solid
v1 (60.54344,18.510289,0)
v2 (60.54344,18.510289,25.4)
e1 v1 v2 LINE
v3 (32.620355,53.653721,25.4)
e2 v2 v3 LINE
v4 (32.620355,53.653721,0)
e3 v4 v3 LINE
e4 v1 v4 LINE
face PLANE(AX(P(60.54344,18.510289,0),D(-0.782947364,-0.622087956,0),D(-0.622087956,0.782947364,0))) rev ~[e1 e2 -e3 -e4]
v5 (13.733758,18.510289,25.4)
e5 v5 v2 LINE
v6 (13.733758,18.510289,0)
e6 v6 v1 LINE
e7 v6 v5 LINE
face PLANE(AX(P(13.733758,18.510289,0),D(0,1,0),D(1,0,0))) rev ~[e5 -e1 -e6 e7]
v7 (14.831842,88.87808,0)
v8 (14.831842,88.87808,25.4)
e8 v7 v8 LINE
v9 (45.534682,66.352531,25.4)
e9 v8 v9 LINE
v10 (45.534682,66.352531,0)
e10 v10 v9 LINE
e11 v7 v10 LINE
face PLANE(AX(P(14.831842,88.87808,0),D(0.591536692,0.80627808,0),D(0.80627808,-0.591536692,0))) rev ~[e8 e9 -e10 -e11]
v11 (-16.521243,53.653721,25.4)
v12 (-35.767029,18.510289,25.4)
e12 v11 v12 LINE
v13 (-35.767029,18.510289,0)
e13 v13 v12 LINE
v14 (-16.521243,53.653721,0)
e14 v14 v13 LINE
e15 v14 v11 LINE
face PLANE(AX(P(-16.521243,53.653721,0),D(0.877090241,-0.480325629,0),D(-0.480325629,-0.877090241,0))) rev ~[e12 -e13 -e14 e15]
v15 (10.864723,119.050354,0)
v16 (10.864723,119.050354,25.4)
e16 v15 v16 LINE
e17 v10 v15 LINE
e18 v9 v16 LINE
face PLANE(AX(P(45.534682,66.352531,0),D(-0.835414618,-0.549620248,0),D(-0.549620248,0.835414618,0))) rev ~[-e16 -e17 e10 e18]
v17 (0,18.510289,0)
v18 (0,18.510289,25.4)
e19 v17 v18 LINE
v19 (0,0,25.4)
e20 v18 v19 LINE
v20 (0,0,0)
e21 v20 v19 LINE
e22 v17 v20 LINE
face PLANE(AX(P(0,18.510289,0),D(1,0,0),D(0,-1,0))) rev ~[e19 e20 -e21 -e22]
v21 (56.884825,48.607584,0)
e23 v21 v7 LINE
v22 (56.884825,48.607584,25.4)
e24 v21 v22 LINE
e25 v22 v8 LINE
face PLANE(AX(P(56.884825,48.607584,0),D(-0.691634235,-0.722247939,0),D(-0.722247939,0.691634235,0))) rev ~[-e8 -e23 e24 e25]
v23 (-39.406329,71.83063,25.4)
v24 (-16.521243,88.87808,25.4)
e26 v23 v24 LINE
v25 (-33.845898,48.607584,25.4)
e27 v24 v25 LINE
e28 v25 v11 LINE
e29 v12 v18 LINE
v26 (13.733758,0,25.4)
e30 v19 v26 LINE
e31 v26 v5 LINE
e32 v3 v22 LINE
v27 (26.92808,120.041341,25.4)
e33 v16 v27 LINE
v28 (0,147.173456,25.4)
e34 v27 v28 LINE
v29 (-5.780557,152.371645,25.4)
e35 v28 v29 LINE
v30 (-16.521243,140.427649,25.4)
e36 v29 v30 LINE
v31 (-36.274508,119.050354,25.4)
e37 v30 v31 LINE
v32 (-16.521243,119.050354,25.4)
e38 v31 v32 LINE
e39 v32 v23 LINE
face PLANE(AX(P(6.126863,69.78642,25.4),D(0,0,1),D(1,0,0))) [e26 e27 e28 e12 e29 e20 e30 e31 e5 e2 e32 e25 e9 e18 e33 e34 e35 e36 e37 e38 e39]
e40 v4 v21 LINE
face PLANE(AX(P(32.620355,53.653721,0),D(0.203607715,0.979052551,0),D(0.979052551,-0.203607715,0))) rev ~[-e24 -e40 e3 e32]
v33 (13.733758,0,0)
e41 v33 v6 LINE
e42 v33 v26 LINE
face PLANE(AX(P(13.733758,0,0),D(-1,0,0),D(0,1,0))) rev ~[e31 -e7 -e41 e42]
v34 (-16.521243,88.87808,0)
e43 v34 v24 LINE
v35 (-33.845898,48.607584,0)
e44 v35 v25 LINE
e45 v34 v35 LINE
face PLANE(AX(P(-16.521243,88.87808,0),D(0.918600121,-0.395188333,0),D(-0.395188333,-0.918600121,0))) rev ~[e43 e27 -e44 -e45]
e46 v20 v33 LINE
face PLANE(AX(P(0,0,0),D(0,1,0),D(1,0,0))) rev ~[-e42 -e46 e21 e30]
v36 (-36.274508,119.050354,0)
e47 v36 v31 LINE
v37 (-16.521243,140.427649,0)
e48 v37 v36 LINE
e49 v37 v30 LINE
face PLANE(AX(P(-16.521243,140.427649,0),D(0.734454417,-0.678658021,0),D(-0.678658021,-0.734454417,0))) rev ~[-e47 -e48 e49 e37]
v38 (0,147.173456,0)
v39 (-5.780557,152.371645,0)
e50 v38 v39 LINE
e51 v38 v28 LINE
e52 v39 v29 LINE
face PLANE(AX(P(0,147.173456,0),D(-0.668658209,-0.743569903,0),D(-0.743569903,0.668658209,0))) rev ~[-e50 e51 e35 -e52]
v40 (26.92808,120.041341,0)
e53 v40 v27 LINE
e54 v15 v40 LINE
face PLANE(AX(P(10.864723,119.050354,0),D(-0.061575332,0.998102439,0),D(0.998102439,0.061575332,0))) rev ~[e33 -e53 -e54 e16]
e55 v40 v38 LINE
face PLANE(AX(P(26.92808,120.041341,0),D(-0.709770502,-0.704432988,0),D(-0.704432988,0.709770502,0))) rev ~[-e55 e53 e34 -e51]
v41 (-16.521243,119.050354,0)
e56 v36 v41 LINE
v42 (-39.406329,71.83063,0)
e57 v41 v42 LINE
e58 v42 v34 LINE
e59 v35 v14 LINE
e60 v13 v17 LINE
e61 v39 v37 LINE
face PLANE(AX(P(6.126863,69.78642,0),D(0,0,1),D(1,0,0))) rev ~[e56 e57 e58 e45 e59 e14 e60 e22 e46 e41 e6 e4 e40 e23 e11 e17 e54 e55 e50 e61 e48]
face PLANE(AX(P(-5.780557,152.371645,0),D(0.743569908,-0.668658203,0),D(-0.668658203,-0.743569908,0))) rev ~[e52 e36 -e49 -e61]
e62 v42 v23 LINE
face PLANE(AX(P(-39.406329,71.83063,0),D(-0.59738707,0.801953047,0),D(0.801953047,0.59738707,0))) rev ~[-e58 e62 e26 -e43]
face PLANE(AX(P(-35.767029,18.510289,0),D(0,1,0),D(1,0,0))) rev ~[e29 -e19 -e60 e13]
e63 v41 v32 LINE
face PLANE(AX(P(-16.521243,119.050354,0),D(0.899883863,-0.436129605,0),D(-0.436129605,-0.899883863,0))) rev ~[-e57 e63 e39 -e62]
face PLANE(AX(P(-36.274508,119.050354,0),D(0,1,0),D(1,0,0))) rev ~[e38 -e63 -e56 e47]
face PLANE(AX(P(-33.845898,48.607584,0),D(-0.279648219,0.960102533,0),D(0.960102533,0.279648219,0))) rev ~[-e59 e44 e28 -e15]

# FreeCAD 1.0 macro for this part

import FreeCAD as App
import Part
import Sketcher
Q = App.Units.Quantity

doc = App.newDocument("Part")
body = doc.addObject("PartDesign::Body", "Body")

# Sketch on XY plane
sketch1 = body.newObject("Sketcher::SketchObject", "Sketch")
sketch1.AttachmentSupport = (doc.getObject("XY_Plane"), [""])
sketch1.MapMode = "FlatFace"
sketch1.addGeometry([
    Part.LineSegment(App.Vector(0, 19, 0), App.Vector(0, 0, 0)),  # 0
    Part.LineSegment(App.Vector(0, 0, 0), App.Vector(14, 0, 0)),  # 1
    Part.LineSegment(App.Vector(14, 0, 0), App.Vector(14, 19, 0)),  # 2
    Part.LineSegment(App.Vector(14, 19, 0), App.Vector(61, 19, 0)),  # 3
    Part.LineSegment(App.Vector(61, 19, 0), App.Vector(33, 54, 0)),  # 4
    Part.LineSegment(App.Vector(33, 54, 0), App.Vector(57, 49, 0)),  # 5
    Part.LineSegment(App.Vector(57, 49, 0), App.Vector(15, 89, 0)),  # 6
    Part.LineSegment(App.Vector(15, 89, 0), App.Vector(46, 66, 0)),  # 7
    Part.LineSegment(App.Vector(46, 66, 0), App.Vector(11, 119, 0)),  # 8
    Part.LineSegment(App.Vector(11, 119, 0), App.Vector(27, 120, 0)),  # 9
    Part.LineSegment(App.Vector(27, 120, 0), App.Vector(0, 147, 0)),  # 10
    Part.LineSegment(App.Vector(0, 147, 0), App.Vector(-6, 152, 0)),  # 11
    Part.LineSegment(App.Vector(-6, 152, 0), App.Vector(-17, 140, 0)),  # 12
    Part.LineSegment(App.Vector(-17, 140, 0), App.Vector(-36, 119, 0)),  # 13
    Part.LineSegment(App.Vector(-36, 119, 0), App.Vector(-17, 119, 0)),  # 14
    Part.LineSegment(App.Vector(-17, 119, 0), App.Vector(-39, 72, 0)),  # 15
    Part.LineSegment(App.Vector(-39, 72, 0), App.Vector(-17, 89, 0)),  # 16
    Part.LineSegment(App.Vector(-17, 89, 0), App.Vector(-34, 49, 0)),  # 17
    Part.LineSegment(App.Vector(-34, 49, 0), App.Vector(-17, 54, 0)),  # 18
    Part.LineSegment(App.Vector(-17, 54, 0), App.Vector(-36, 19, 0)),  # 19
    Part.LineSegment(App.Vector(-36, 19, 0), App.Vector(0, 19, 0)),  # 20
], False)
sketch1.addConstraint([
    Sketcher.Constraint("Coincident", 0, 2, 1, 1),
    Sketcher.Constraint("Coincident", 1, 2, 2, 1),
    Sketcher.Constraint("Coincident", 2, 2, 3, 1),
    Sketcher.Constraint("Coincident", 3, 2, 4, 1),
    Sketcher.Constraint("Coincident", 4, 2, 5, 1),
    Sketcher.Constraint("Coincident", 5, 2, 6, 1),
    Sketcher.Constraint("Coincident", 6, 2, 7, 1),
    Sketcher.Constraint("Coincident", 7, 2, 8, 1),
    Sketcher.Constraint("Coincident", 8, 2, 9, 1),
    Sketcher.Constraint("Coincident", 9, 2, 10, 1),
    Sketcher.Constraint("Coincident", 10, 2, 11, 1),
    Sketcher.Constraint("Coincident", 11, 2, 12, 1),
    Sketcher.Constraint("Coincident", 12, 2, 13, 1),
    Sketcher.Constraint("Coincident", 13, 2, 14, 1),
    Sketcher.Constraint("Coincident", 14, 2, 15, 1),
    Sketcher.Constraint("Coincident", 15, 2, 16, 1),
    Sketcher.Constraint("Coincident", 16, 2, 17, 1),
    Sketcher.Constraint("Coincident", 17, 2, 18, 1),
    Sketcher.Constraint("Coincident", 18, 2, 19, 1),
    Sketcher.Constraint("Coincident", 19, 2, 20, 1),
    Sketcher.Constraint("Coincident", 20, 2, 0, 1),
    Sketcher.Constraint("Vertical", 0),
    Sketcher.Constraint("Horizontal", 1),
    Sketcher.Constraint("Vertical", 2),
    Sketcher.Constraint("Horizontal", 3),
    Sketcher.Constraint("Horizontal", 14),
    Sketcher.Constraint("Horizontal", 20),
    Sketcher.Constraint("Coincident", 0, 2, -1, 1),
    Sketcher.Constraint("PointOnObject", 10, 2, -2),
    Sketcher.Constraint("Perpendicular", 11, 12),
    Sketcher.Constraint("Horizontal", 8, 2, 13, 2),
    Sketcher.Constraint("Horizontal", 6, 2, 16, 2),
    Sketcher.Constraint("Horizontal", 5, 2, 17, 2),
    Sketcher.Constraint("Horizontal", 4, 2, 18, 2),
    Sketcher.Constraint("Horizontal", 3, 2, 19, 2),
    Sketcher.Constraint("Vertical", 12, 2, 14, 2),
    Sketcher.Constraint("Vertical", 14, 2, 16, 2),
    Sketcher.Constraint("Vertical", 16, 2, 18, 2),
    Sketcher.Constraint("DistanceX", -1, 1, 3, 2, Q("2.3836 in")),
    Sketcher.Constraint("DistanceY", 6, 2, 9, 2, Q("1.2269 in")),
    Sketcher.Constraint("DistanceX", 15, 2, 13, 2, Q("0.1233 in")),
    Sketcher.Constraint("DistanceX", 3, 1, 3, 2, 46.809682),
    Sketcher.Constraint("DistanceX", 20, 1, 20, 2, 35.767029),
    Sketcher.Constraint("DistanceY", 0, 2, 0, 1, 18.510289),
    Sketcher.Constraint("DistanceX", 9, 2, 7, 2, 18.606602),
    Sketcher.Constraint("DistanceY", 8, 2, 10, 2, 28.123102),
    Sketcher.Constraint("DistanceX", 11, 2, 6, 2, 20.612399),
    Sketcher.Constraint("DistanceX", 18, 2, 2, 2, 30.255001),
    Sketcher.Constraint("Distance", 11, 7.77406),
    Sketcher.Constraint("Distance", 13, 29.10636),
    Sketcher.Constraint("Distance", 15, 52.473131),
    Sketcher.Constraint("Distance", 16, 28.536691),
    Sketcher.Constraint("Distance", 18, 18.044588),
    Sketcher.Constraint("DistanceX", 14, 1, 14, 2, 19.753265),
    Sketcher.Constraint("DistanceY", -1, 1, 4, 2, 53.653721),
    Sketcher.Constraint("DistanceY", -1, 1, 6, 2, 88.87808),
    Sketcher.Constraint("DistanceX", -1, 1, 7, 2, 45.534682),
    Sketcher.Constraint("DistanceY", -1, 1, 7, 2, 66.352531),
    Sketcher.Constraint("DistanceX", 4, 2, 5, 2, 24.26447),
    Sketcher.Constraint("DistanceX", 8, 2, 6, 2, 3.967119),
    Sketcher.Constraint("DistanceY", 5, 2, 8, 2, 70.44277),
    Sketcher.Constraint("Distance", 4, 44.886072),
])
pad1 = body.newObject("PartDesign::Pad", "Pad")
pad1.Profile = sketch1
pad1.Length = Q("1 in")

doc.recompute()
